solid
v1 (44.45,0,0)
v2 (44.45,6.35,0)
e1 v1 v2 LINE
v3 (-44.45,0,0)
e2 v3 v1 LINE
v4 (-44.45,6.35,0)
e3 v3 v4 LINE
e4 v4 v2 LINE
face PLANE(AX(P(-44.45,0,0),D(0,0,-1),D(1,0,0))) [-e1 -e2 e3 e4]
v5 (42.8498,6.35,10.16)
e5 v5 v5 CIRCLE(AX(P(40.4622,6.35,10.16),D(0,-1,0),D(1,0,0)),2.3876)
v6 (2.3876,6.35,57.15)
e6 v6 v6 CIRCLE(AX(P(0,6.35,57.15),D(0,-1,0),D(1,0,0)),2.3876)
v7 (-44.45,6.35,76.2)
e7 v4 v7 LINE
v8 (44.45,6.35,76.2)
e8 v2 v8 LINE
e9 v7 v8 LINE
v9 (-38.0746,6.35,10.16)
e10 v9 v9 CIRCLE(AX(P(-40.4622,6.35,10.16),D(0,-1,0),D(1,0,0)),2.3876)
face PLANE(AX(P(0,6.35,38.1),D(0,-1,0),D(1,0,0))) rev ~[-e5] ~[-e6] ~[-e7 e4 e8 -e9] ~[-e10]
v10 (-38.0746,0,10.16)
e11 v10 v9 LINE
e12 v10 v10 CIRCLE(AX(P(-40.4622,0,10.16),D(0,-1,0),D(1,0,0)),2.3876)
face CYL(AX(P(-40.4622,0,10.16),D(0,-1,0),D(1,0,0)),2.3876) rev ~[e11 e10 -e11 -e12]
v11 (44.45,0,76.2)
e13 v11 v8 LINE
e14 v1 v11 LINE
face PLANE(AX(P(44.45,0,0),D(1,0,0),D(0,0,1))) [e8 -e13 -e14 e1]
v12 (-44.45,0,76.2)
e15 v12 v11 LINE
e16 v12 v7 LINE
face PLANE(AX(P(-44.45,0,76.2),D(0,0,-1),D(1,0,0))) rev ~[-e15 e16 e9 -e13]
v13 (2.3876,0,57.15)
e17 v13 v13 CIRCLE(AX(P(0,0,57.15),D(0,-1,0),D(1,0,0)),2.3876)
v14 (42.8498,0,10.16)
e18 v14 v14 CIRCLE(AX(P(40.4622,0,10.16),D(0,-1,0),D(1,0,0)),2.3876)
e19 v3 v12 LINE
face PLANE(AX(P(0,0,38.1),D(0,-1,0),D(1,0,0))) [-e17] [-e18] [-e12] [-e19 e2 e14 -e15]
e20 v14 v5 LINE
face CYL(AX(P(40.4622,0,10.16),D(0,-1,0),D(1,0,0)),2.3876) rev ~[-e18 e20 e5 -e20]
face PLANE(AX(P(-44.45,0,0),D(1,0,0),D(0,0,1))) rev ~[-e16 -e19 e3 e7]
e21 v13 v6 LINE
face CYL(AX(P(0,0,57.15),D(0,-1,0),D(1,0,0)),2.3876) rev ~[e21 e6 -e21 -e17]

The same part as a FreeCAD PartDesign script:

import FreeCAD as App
import Part
import Sketcher

V = App.Vector
Q = App.Units.Quantity

doc = App.newDocument("Part")
body = doc.addObject("PartDesign::Body", "Body")

# Sketch on XZ plane
sketch1 = doc.addObject("Sketcher::SketchObject", "Sketch")
body.addObject(sketch1)
sketch1.AttachmentSupport = (doc.XZ_Plane, [""])
sketch1.MapMode = "FlatFace"
sketch1.addGeometry([
    Part.LineSegment(V(-44.5, 76.2, 0), V(-44.5, 0, 0)),  # 0
    Part.LineSegment(V(-44.5, 0, 0), V(44.5, 0, 0)),  # 1
    Part.LineSegment(V(44.5, 0, 0), V(44.5, 76.2, 0)),  # 2
    Part.LineSegment(V(44.5, 76.2, 0), V(-44.5, 76.2, 0)),  # 3
    Part.Circle(V(-40.5, 10.2, 0), V(0, 0, 1), 2.4),  # 4
    Part.Circle(V(40.5, 10.2, 0), V(0, 0, 1), 2.4),  # 5
    Part.Circle(V(0, 57.1, 0), V(0, 0, 1), 2.4),  # 6
], False)
sketch1.addConstraint([
    Sketcher.Constraint("Coincident", 0, 2, 1, 1),
    Sketcher.Constraint("Coincident", 1, 2, 2, 1),
    Sketcher.Constraint("Coincident", 2, 2, 3, 1),
    Sketcher.Constraint("Coincident", 3, 2, 0, 1),
    Sketcher.Constraint("Vertical", 0),
    Sketcher.Constraint("Horizontal", 1),
    Sketcher.Constraint("Vertical", 2),
    Sketcher.Constraint("Horizontal", 3),
    Sketcher.Constraint("Equal", 4, 5),
    Sketcher.Constraint("Equal", 5, 6),
    Sketcher.Constraint("Symmetric", 0, 2, 1, 2, -1, 1),
    Sketcher.Constraint("Symmetric", 4, 3, 5, 3, -2),
    Sketcher.Constraint("PointOnObject", 6, 3, -2),
    Sketcher.Constraint("DistanceY", 0, 2, 0, 1, Q("3 in")),
    Sketcher.Constraint("Diameter", 4, Q("0.188 in")),
    Sketcher.Constraint("DistanceX", 1, 1, 1, 2, Q("3.5 in")),
    Sketcher.Constraint("DistanceY", -1, 1, 4, 3, Q("0.4 in")),
    Sketcher.Constraint("DistanceY", -1, 1, 6, 3, Q("2.25 in")),
    Sketcher.Constraint("DistanceX", 4, 3, -1, 1, Q("1.593 in")),
])
pad1 = doc.addObject("PartDesign::Pad", "Pad")
body.addObject(pad1)
pad1.Profile = sketch1
pad1.Length = Q("0.25 in")
pad1.Reversed = True

doc.recompute()
